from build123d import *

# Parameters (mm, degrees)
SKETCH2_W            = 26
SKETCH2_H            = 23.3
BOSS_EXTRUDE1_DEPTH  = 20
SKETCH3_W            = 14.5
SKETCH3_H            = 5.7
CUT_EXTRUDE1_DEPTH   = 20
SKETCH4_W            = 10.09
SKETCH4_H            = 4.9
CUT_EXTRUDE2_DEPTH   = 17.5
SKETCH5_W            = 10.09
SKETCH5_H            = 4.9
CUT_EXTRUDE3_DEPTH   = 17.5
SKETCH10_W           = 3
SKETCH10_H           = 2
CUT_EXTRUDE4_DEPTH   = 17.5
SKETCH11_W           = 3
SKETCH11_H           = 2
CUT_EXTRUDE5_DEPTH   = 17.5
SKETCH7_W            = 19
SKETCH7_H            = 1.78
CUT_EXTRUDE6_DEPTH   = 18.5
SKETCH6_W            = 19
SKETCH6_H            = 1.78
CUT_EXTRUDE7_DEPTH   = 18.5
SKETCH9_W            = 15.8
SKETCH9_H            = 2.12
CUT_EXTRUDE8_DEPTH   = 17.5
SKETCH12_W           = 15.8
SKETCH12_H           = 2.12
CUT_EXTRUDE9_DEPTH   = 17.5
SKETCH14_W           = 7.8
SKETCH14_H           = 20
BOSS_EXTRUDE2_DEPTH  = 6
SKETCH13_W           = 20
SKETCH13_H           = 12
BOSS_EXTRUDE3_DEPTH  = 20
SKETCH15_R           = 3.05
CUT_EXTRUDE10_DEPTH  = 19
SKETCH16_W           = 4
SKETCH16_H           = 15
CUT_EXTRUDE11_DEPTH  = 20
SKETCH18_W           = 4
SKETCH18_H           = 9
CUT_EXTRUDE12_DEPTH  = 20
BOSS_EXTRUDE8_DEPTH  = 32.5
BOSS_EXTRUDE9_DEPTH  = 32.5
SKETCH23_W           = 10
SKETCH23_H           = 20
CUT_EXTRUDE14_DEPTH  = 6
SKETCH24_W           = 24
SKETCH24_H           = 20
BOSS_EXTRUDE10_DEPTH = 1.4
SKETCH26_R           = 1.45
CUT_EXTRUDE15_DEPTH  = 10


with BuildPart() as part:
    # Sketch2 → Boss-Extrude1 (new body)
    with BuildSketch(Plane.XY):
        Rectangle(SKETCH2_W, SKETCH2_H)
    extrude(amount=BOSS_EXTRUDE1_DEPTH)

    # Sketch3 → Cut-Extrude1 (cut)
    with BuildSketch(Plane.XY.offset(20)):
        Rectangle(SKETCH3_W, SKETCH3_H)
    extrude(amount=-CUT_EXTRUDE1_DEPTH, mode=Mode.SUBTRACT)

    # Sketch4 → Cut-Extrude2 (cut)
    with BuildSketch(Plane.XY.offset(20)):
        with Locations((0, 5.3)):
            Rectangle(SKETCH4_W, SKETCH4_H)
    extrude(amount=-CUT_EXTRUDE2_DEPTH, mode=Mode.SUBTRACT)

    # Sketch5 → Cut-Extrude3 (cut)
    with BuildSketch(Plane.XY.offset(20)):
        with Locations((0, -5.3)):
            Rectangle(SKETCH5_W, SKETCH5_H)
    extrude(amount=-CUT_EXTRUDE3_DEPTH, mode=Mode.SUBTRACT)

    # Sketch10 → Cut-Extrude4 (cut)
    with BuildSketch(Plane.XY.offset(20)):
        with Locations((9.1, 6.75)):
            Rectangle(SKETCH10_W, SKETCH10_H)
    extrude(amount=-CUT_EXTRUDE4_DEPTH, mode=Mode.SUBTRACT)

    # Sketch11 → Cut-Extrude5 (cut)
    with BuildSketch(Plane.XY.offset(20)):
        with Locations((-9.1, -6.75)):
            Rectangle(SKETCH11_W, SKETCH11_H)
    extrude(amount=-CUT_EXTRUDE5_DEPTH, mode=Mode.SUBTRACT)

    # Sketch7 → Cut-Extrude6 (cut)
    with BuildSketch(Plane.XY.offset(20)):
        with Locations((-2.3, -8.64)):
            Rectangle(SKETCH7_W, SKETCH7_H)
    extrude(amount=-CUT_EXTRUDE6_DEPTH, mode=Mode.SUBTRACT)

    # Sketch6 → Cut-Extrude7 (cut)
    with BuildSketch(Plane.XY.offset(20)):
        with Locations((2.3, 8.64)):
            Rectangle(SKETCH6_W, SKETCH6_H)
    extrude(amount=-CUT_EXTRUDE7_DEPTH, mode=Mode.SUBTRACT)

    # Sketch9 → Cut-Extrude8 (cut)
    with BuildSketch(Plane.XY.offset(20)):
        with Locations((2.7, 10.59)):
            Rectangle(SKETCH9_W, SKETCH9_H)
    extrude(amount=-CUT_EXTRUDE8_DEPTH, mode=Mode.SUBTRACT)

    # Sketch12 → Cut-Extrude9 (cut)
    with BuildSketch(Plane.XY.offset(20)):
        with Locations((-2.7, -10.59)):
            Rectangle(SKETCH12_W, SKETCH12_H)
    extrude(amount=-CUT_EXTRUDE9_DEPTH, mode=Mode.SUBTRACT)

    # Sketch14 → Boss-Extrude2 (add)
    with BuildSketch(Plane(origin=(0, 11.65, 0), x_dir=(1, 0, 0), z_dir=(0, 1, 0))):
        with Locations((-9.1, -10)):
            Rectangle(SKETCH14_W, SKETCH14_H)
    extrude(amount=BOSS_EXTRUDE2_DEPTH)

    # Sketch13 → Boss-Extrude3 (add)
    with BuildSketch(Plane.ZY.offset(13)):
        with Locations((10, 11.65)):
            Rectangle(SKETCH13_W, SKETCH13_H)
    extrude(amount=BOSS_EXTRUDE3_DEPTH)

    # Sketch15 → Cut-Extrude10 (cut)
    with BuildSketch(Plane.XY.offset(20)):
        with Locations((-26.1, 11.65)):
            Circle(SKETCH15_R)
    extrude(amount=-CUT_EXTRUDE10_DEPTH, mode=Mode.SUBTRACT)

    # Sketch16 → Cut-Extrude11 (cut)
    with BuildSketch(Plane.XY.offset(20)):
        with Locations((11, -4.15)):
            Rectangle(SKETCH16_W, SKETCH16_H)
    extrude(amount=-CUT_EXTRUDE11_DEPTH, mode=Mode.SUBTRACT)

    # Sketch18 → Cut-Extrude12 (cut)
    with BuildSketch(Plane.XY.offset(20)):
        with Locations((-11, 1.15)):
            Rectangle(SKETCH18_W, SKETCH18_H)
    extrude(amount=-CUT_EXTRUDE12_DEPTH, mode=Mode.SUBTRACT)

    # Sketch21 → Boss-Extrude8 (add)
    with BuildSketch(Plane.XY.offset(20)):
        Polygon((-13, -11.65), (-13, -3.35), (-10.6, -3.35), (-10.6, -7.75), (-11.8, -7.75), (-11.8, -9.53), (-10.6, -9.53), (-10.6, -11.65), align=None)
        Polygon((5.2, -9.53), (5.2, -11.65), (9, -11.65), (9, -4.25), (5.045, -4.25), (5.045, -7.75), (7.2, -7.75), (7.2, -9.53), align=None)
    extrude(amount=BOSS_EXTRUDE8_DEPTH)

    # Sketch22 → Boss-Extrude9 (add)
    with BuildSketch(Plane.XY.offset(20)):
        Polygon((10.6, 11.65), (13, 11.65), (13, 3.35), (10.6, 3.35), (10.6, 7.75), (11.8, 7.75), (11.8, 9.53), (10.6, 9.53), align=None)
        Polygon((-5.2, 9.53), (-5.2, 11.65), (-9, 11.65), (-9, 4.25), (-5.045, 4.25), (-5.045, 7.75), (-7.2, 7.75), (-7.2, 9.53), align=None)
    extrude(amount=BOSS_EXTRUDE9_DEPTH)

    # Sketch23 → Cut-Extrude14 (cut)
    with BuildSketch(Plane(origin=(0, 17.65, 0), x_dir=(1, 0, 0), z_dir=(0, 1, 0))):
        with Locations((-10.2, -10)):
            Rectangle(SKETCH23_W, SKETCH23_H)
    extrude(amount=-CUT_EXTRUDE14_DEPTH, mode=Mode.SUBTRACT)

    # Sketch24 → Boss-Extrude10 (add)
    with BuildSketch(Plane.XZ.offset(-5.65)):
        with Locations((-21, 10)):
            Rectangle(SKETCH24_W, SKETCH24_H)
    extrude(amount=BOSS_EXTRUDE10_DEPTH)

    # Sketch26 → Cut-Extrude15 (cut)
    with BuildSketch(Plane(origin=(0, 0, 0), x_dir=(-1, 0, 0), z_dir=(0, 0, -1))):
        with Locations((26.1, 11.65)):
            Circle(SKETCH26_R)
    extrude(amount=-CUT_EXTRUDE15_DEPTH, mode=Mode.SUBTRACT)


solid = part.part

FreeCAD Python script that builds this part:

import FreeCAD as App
import Part
import Sketcher

doc = App.newDocument("Part")
body = doc.addObject("PartDesign::Body", "Body")

sketch1 = body.newObject("Sketcher::SketchObject", "Sketch")
sketch1.AttachmentSupport = (doc.getObject("XY_Plane"), [""])
sketch1.MapMode = "FlatFace"
sketch1.addGeometry(Part.LineSegment(App.Vector(-13, 12, 0), App.Vector(-13, -12, 0)), False)
sketch1.addGeometry(Part.LineSegment(App.Vector(-13, -12, 0), App.Vector(13, -12, 0)), False)
sketch1.addGeometry(Part.LineSegment(App.Vector(13, -12, 0), App.Vector(13, 12, 0)), False)
sketch1.addGeometry(Part.LineSegment(App.Vector(13, 12, 0), App.Vector(-13, 12, 0)), False)
sketch1.addConstraint(Sketcher.Constraint("Coincident", 0, 2, 1, 1))
sketch1.addConstraint(Sketcher.Constraint("Coincident", 1, 2, 2, 1))
sketch1.addConstraint(Sketcher.Constraint("Coincident", 2, 2, 3, 1))
sketch1.addConstraint(Sketcher.Constraint("Coincident", 3, 2, 0, 1))
sketch1.addConstraint(Sketcher.Constraint("Vertical", 0))
sketch1.addConstraint(Sketcher.Constraint("Horizontal", 1))
sketch1.addConstraint(Sketcher.Constraint("Vertical", 2))
sketch1.addConstraint(Sketcher.Constraint("Horizontal", 3))
sketch1.addConstraint(Sketcher.Constraint("Symmetric", 0, 2, 2, 2, -1, 1))
sketch1.addConstraint(Sketcher.Constraint("DistanceX", 1, 1, 1, 2, 26.0))
sketch1.addConstraint(Sketcher.Constraint("DistanceY", 0, 2, 0, 1, 23.3))
pad1 = body.newObject("PartDesign::Pad", "Pad")
pad1.Profile = sketch1
pad1.Length = 20

sketch2 = body.newObject("Sketcher::SketchObject", "Sketch001")
sketch2.AttachmentSupport = (doc.getObject("XY_Plane"), [""])
sketch2.MapMode = "FlatFace"
sketch2.AttachmentOffset = App.Placement(App.Vector(0, 0, 20), App.Rotation())
sketch2.addGeometry(Part.LineSegment(App.Vector(-7, 3, 0), App.Vector(-7, -3, 0)), False)
sketch2.addGeometry(Part.LineSegment(App.Vector(-7, -3, 0), App.Vector(7, -3, 0)), False)
sketch2.addGeometry(Part.LineSegment(App.Vector(7, -3, 0), App.Vector(7, 3, 0)), False)
sketch2.addGeometry(Part.LineSegment(App.Vector(7, 3, 0), App.Vector(-7, 3, 0)), False)
sketch2.addConstraint(Sketcher.Constraint("Coincident", 0, 2, 1, 1))
sketch2.addConstraint(Sketcher.Constraint("Coincident", 1, 2, 2, 1))
sketch2.addConstraint(Sketcher.Constraint("Coincident", 2, 2, 3, 1))
sketch2.addConstraint(Sketcher.Constraint("Coincident", 3, 2, 0, 1))
sketch2.addConstraint(Sketcher.Constraint("Vertical", 0))
sketch2.addConstraint(Sketcher.Constraint("Horizontal", 1))
sketch2.addConstraint(Sketcher.Constraint("Vertical", 2))
sketch2.addConstraint(Sketcher.Constraint("Horizontal", 3))
sketch2.addConstraint(Sketcher.Constraint("Symmetric", 0, 2, 2, 2, -1, 1))
sketch2.addConstraint(Sketcher.Constraint("DistanceX", 1, 1, 1, 2, 14.5))
sketch2.addConstraint(Sketcher.Constraint("DistanceY", 0, 2, 0, 1, 5.7))
pocket1 = body.newObject("PartDesign::Pocket", "Pocket")
pocket1.Profile = sketch2
pocket1.Length = 20

sketch3 = body.newObject("Sketcher::SketchObject", "Sketch002")
sketch3.AttachmentSupport = (doc.getObject("XY_Plane"), [""])
sketch3.MapMode = "FlatFace"
sketch3.AttachmentOffset = App.Placement(App.Vector(0, 0, 20), App.Rotation())
sketch3.addGeometry(Part.LineSegment(App.Vector(-5, 7.8, 0), App.Vector(-5, 2.9, 0)), False)
sketch3.addGeometry(Part.LineSegment(App.Vector(-5, 2.9, 0), App.Vector(5, 2.9, 0)), False)
sketch3.addGeometry(Part.LineSegment(App.Vector(5, 2.9, 0), App.Vector(5, 7.8, 0)), False)
sketch3.addGeometry(Part.LineSegment(App.Vector(5, 7.8, 0), App.Vector(-5, 7.8, 0)), False)
sketch3.addConstraint(Sketcher.Constraint("Coincident", 0, 2, 1, 1))
sketch3.addConstraint(Sketcher.Constraint("Coincident", 1, 2, 2, 1))
sketch3.addConstraint(Sketcher.Constraint("Coincident", 2, 2, 3, 1))
sketch3.addConstraint(Sketcher.Constraint("Coincident", 3, 2, 0, 1))
sketch3.addConstraint(Sketcher.Constraint("Vertical", 0))
sketch3.addConstraint(Sketcher.Constraint("Horizontal", 1))
sketch3.addConstraint(Sketcher.Constraint("Vertical", 2))
sketch3.addConstraint(Sketcher.Constraint("Horizontal", 3))
sketch3.addConstraint(Sketcher.Constraint("DistanceY", 0, 2, 0, 1, 4.9))
sketch3.addConstraint(Sketcher.Constraint("DistanceX", 1, 1, 1, 2, 10.09))
sketch3.addConstraint(Sketcher.Constraint("DistanceY", -1, 1, 0, 2, 2.85))
sketch3.addConstraint(Sketcher.Constraint("DistanceX", 0, 2, -1, 1, 5.045))
pocket2 = body.newObject("PartDesign::Pocket", "Pocket001")
pocket2.Profile = sketch3
pocket2.Length = 17.5

sketch4 = body.newObject("Sketcher::SketchObject", "Sketch003")
sketch4.AttachmentSupport = (doc.getObject("XY_Plane"), [""])
sketch4.MapMode = "FlatFace"
sketch4.AttachmentOffset = App.Placement(App.Vector(0, 0, 20), App.Rotation())
sketch4.addGeometry(Part.LineSegment(App.Vector(-5, -2.9, 0), App.Vector(-5, -7.8, 0)), False)
sketch4.addGeometry(Part.LineSegment(App.Vector(-5, -7.8, 0), App.Vector(5, -7.8, 0)), False)
sketch4.addGeometry(Part.LineSegment(App.Vector(5, -7.8, 0), App.Vector(5, -2.9, 0)), False)
sketch4.addGeometry(Part.LineSegment(App.Vector(5, -2.9, 0), App.Vector(-5, -2.9, 0)), False)
sketch4.addConstraint(Sketcher.Constraint("Coincident", 0, 2, 1, 1))
sketch4.addConstraint(Sketcher.Constraint("Coincident", 1, 2, 2, 1))
sketch4.addConstraint(Sketcher.Constraint("Coincident", 2, 2, 3, 1))
sketch4.addConstraint(Sketcher.Constraint("Coincident", 3, 2, 0, 1))
sketch4.addConstraint(Sketcher.Constraint("Vertical", 0))
sketch4.addConstraint(Sketcher.Constraint("Horizontal", 1))
sketch4.addConstraint(Sketcher.Constraint("Vertical", 2))
sketch4.addConstraint(Sketcher.Constraint("Horizontal", 3))
sketch4.addConstraint(Sketcher.Constraint("DistanceY", 0, 2, 0, 1, 4.9))
sketch4.addConstraint(Sketcher.Constraint("DistanceX", 1, 1, 1, 2, 10.09))
sketch4.addConstraint(Sketcher.Constraint("DistanceY", 0, 2, -1, 1, 7.75))
sketch4.addConstraint(Sketcher.Constraint("DistanceX", 0, 2, -1, 1, 5.045))
pocket3 = body.newObject("PartDesign::Pocket", "Pocket002")
pocket3.Profile = sketch4
pocket3.Length = 17.5

sketch5 = body.newObject("Sketcher::SketchObject", "Sketch004")
sketch5.AttachmentSupport = (doc.getObject("XY_Plane"), [""])
sketch5.MapMode = "FlatFace"
sketch5.AttachmentOffset = App.Placement(App.Vector(0, 0, 20), App.Rotation())
sketch5.addGeometry(Part.LineSegment(App.Vector(7.6, 7.8, 0), App.Vector(7.6, 5.8, 0)), False)
sketch5.addGeometry(Part.LineSegment(App.Vector(7.6, 5.8, 0), App.Vector(10.6, 5.8, 0)), False)
sketch5.addGeometry(Part.LineSegment(App.Vector(10.6, 5.8, 0), App.Vector(10.6, 7.8, 0)), False)
sketch5.addGeometry(Part.LineSegment(App.Vector(10.6, 7.8, 0), App.Vector(7.6, 7.8, 0)), False)
sketch5.addConstraint(Sketcher.Constraint("Coincident", 0, 2, 1, 1))
sketch5.addConstraint(Sketcher.Constraint("Coincident", 1, 2, 2, 1))
sketch5.addConstraint(Sketcher.Constraint("Coincident", 2, 2, 3, 1))
sketch5.addConstraint(Sketcher.Constraint("Coincident", 3, 2, 0, 1))
sketch5.addConstraint(Sketcher.Constraint("Vertical", 0))
sketch5.addConstraint(Sketcher.Constraint("Horizontal", 1))
sketch5.addConstraint(Sketcher.Constraint("Vertical", 2))
sketch5.addConstraint(Sketcher.Constraint("Horizontal", 3))
sketch5.addConstraint(Sketcher.Constraint("DistanceX", 1, 1, 1, 2, 3.0))
sketch5.addConstraint(Sketcher.Constraint("DistanceY", 0, 2, 0, 1, 2.0))
sketch5.addConstraint(Sketcher.Constraint("DistanceX", -1, 1, 0, 2, 7.6))
sketch5.addConstraint(Sketcher.Constraint("DistanceY", -1, 1, 0, 2, 5.75))
pocket4 = body.newObject("PartDesign::Pocket", "Pocket003")
pocket4.Profile = sketch5
pocket4.Length = 17.5

sketch6 = body.newObject("Sketcher::SketchObject", "Sketch005")
sketch6.AttachmentSupport = (doc.getObject("XY_Plane"), [""])
sketch6.MapMode = "FlatFace"
sketch6.AttachmentOffset = App.Placement(App.Vector(0, 0, 20), App.Rotation())
sketch6.addGeometry(Part.LineSegment(App.Vector(-10.6, -5.8, 0), App.Vector(-10.6, -7.8, 0)), False)
sketch6.addGeometry(Part.LineSegment(App.Vector(-10.6, -7.8, 0), App.Vector(-7.6, -7.8, 0)), False)
sketch6.addGeometry(Part.LineSegment(App.Vector(-7.6, -7.8, 0), App.Vector(-7.6, -5.8, 0)), False)
sketch6.addGeometry(Part.LineSegment(App.Vector(-7.6, -5.8, 0), App.Vector(-10.6, -5.8, 0)), False)
sketch6.addConstraint(Sketcher.Constraint("Coincident", 0, 2, 1, 1))
sketch6.addConstraint(Sketcher.Constraint("Coincident", 1, 2, 2, 1))
sketch6.addConstraint(Sketcher.Constraint("Coincident", 2, 2, 3, 1))
sketch6.addConstraint(Sketcher.Constraint("Coincident", 3, 2, 0, 1))
sketch6.addConstraint(Sketcher.Constraint("Vertical", 0))
sketch6.addConstraint(Sketcher.Constraint("Horizontal", 1))
sketch6.addConstraint(Sketcher.Constraint("Vertical", 2))
sketch6.addConstraint(Sketcher.Constraint("Horizontal", 3))
sketch6.addConstraint(Sketcher.Constraint("DistanceX", 1, 1, 1, 2, 3.0))
sketch6.addConstraint(Sketcher.Constraint("DistanceY", 0, 2, 0, 1, 2.0))
sketch6.addConstraint(Sketcher.Constraint("DistanceX", 0, 2, -1, 1, 10.6))
sketch6.addConstraint(Sketcher.Constraint("DistanceY", 0, 2, -1, 1, 7.75))
pocket5 = body.newObject("PartDesign::Pocket", "Pocket004")
pocket5.Profile = sketch6
pocket5.Length = 17.5

sketch7 = body.newObject("Sketcher::SketchObject", "Sketch006")
sketch7.AttachmentSupport = (doc.getObject("XY_Plane"), [""])
sketch7.MapMode = "FlatFace"
sketch7.AttachmentOffset = App.Placement(App.Vector(0, 0, 20), App.Rotation())
sketch7.addGeometry(Part.LineSegment(App.Vector(-11.8, -7.8, 0), App.Vector(-11.8, -9.5, 0)), False)
sketch7.addGeometry(Part.LineSegment(App.Vector(-11.8, -9.5, 0), App.Vector(7.2, -9.5, 0)), False)
sketch7.addGeometry(Part.LineSegment(App.Vector(7.2, -9.5, 0), App.Vector(7.2, -7.8, 0)), False)
sketch7.addGeometry(Part.LineSegment(App.Vector(7.2, -7.8, 0), App.Vector(-11.8, -7.8, 0)), False)
sketch7.addConstraint(Sketcher.Constraint("Coincident", 0, 2, 1, 1))
sketch7.addConstraint(Sketcher.Constraint("Coincident", 1, 2, 2, 1))
sketch7.addConstraint(Sketcher.Constraint("Coincident", 2, 2, 3, 1))
sketch7.addConstraint(Sketcher.Constraint("Coincident", 3, 2, 0, 1))
sketch7.addConstraint(Sketcher.Constraint("Vertical", 0))
sketch7.addConstraint(Sketcher.Constraint("Horizontal", 1))
sketch7.addConstraint(Sketcher.Constraint("Vertical", 2))
sketch7.addConstraint(Sketcher.Constraint("Horizontal", 3))
sketch7.addConstraint(Sketcher.Constraint("DistanceX", 1, 1, 1, 2, 19.0))
sketch7.addConstraint(Sketcher.Constraint("DistanceY", 0, 2, 0, 1, 1.78))
sketch7.addConstraint(Sketcher.Constraint("DistanceX", 0, 2, -1, 1, 11.8))
sketch7.addConstraint(Sketcher.Constraint("DistanceY", 0, 2, -1, 1, 9.53))
pocket6 = body.newObject("PartDesign::Pocket", "Pocket005")
pocket6.Profile = sketch7
pocket6.Length = 18.5

sketch8 = body.newObject("Sketcher::SketchObject", "Sketch007")
sketch8.AttachmentSupport = (doc.getObject("XY_Plane"), [""])
sketch8.MapMode = "FlatFace"
sketch8.AttachmentOffset = App.Placement(App.Vector(0, 0, 20), App.Rotation())
sketch8.addGeometry(Part.LineSegment(App.Vector(-7.2, 9.5, 0), App.Vector(-7.2, 7.8, 0)), False)
sketch8.addGeometry(Part.LineSegment(App.Vector(-7.2, 7.8, 0), App.Vector(11.8, 7.8, 0)), False)
sketch8.addGeometry(Part.LineSegment(App.Vector(11.8, 7.8, 0), App.Vector(11.8, 9.5, 0)), False)
sketch8.addGeometry(Part.LineSegment(App.Vector(11.8, 9.5, 0), App.Vector(-7.2, 9.5, 0)), False)
sketch8.addConstraint(Sketcher.Constraint("Coincident", 0, 2, 1, 1))
sketch8.addConstraint(Sketcher.Constraint("Coincident", 1, 2, 2, 1))
sketch8.addConstraint(Sketcher.Constraint("Coincident", 2, 2, 3, 1))
sketch8.addConstraint(Sketcher.Constraint("Coincident", 3, 2, 0, 1))
sketch8.addConstraint(Sketcher.Constraint("Vertical", 0))
sketch8.addConstraint(Sketcher.Constraint("Horizontal", 1))
sketch8.addConstraint(Sketcher.Constraint("Vertical", 2))
sketch8.addConstraint(Sketcher.Constraint("Horizontal", 3))
sketch8.addConstraint(Sketcher.Constraint("DistanceX", 1, 1, 1, 2, 19.0))
sketch8.addConstraint(Sketcher.Constraint("DistanceY", 0, 2, 0, 1, 1.78))
sketch8.addConstraint(Sketcher.Constraint("DistanceX", 0, 2, -1, 1, 7.2))
sketch8.addConstraint(Sketcher.Constraint("DistanceY", -1, 1, 0, 2, 7.75))
pocket7 = body.newObject("PartDesign::Pocket", "Pocket006")
pocket7.Profile = sketch8
pocket7.Length = 18.5

sketch9 = body.newObject("Sketcher::SketchObject", "Sketch008")
sketch9.AttachmentSupport = (doc.getObject("XY_Plane"), [""])
sketch9.MapMode = "FlatFace"
sketch9.AttachmentOffset = App.Placement(App.Vector(0, 0, 20), App.Rotation())
sketch9.addGeometry(Part.LineSegment(App.Vector(-5.2, 11.7, 0), App.Vector(-5.2, 9.5, 0)), False)
sketch9.addGeometry(Part.LineSegment(App.Vector(-5.2, 9.5, 0), App.Vector(10.6, 9.5, 0)), False)
sketch9.addGeometry(Part.LineSegment(App.Vector(10.6, 9.5, 0), App.Vector(10.6, 11.7, 0)), False)
sketch9.addGeometry(Part.LineSegment(App.Vector(10.6, 11.7, 0), App.Vector(-5.2, 11.7, 0)), False)
sketch9.addConstraint(Sketcher.Constraint("Coincident", 0, 2, 1, 1))
sketch9.addConstraint(Sketcher.Constraint("Coincident", 1, 2, 2, 1))
sketch9.addConstraint(Sketcher.Constraint("Coincident", 2, 2, 3, 1))
sketch9.addConstraint(Sketcher.Constraint("Coincident", 3, 2, 0, 1))
sketch9.addConstraint(Sketcher.Constraint("Vertical", 0))
sketch9.addConstraint(Sketcher.Constraint("Horizontal", 1))
sketch9.addConstraint(Sketcher.Constraint("Vertical", 2))
sketch9.addConstraint(Sketcher.Constraint("Horizontal", 3))
sketch9.addConstraint(Sketcher.Constraint("DistanceX", 1, 1, 1, 2, 15.8))
sketch9.addConstraint(Sketcher.Constraint("DistanceY", 0, 2, 0, 1, 2.12))
sketch9.addConstraint(Sketcher.Constraint("DistanceX", 0, 2, -1, 1, 5.2))
sketch9.addConstraint(Sketcher.Constraint("DistanceY", -1, 1, 0, 2, 9.53))
pocket8 = body.newObject("PartDesign::Pocket", "Pocket007")
pocket8.Profile = sketch9
pocket8.Length = 17.5

sketch10 = body.newObject("Sketcher::SketchObject", "Sketch009")
sketch10.AttachmentSupport = (doc.getObject("XY_Plane"), [""])
sketch10.MapMode = "FlatFace"
sketch10.AttachmentOffset = App.Placement(App.Vector(0, 0, 20), App.Rotation())
sketch10.addGeometry(Part.LineSegment(App.Vector(-10.6, -9.5, 0), App.Vector(-10.6, -11.7, 0)), False)
sketch10.addGeometry(Part.LineSegment(App.Vector(-10.6, -11.7, 0), App.Vector(5.2, -11.7, 0)), False)
sketch10.addGeometry(Part.LineSegment(App.Vector(5.2, -11.7, 0), App.Vector(5.2, -9.5, 0)), False)
sketch10.addGeometry(Part.LineSegment(App.Vector(5.2, -9.5, 0), App.Vector(-10.6, -9.5, 0)), False)
sketch10.addConstraint(Sketcher.Constraint("Coincident", 0, 2, 1, 1))
sketch10.addConstraint(Sketcher.Constraint("Coincident", 1, 2, 2, 1))
sketch10.addConstraint(Sketcher.Constraint("Coincident", 2, 2, 3, 1))
sketch10.addConstraint(Sketcher.Constraint("Coincident", 3, 2, 0, 1))
sketch10.addConstraint(Sketcher.Constraint("Vertical", 0))
sketch10.addConstraint(Sketcher.Constraint("Horizontal", 1))
sketch10.addConstraint(Sketcher.Constraint("Vertical", 2))
sketch10.addConstraint(Sketcher.Constraint("Horizontal", 3))
sketch10.addConstraint(Sketcher.Constraint("DistanceX", 1, 1, 1, 2, 15.8))
sketch10.addConstraint(Sketcher.Constraint("DistanceY", 0, 2, 0, 1, 2.12))
sketch10.addConstraint(Sketcher.Constraint("DistanceX", 0, 2, -1, 1, 10.6))
sketch10.addConstraint(Sketcher.Constraint("DistanceY", 0, 2, -1, 1, 11.65))
pocket9 = body.newObject("PartDesign::Pocket", "Pocket008")
pocket9.Profile = sketch10
pocket9.Length = 17.5

sketch11 = body.newObject("Sketcher::SketchObject", "Sketch010")
sketch11.AttachmentSupport = (doc.getObject("XZ_Plane"), [""])
sketch11.MapMode = "FlatFace"
sketch11.AttachmentOffset = App.Placement(App.Vector(0, 0, -11.65), App.Rotation())
sketch11.addGeometry(Part.LineSegment(App.Vector(-13, 0, 0), App.Vector(-13, 20, 0)), False)
sketch11.addGeometry(Part.LineSegment(App.Vector(-13, 20, 0), App.Vector(-5, 20, 0)), False)
sketch11.addGeometry(Part.LineSegment(App.Vector(-5, 20, 0), App.Vector(-5, 0, 0)), False)
sketch11.addGeometry(Part.LineSegment(App.Vector(-5, 0, 0), App.Vector(-13, 0, 0)), False)
sketch11.addConstraint(Sketcher.Constraint("Coincident", 0, 2, 1, 1))
sketch11.addConstraint(Sketcher.Constraint("Coincident", 1, 2, 2, 1))
sketch11.addConstraint(Sketcher.Constraint("Coincident", 2, 2, 3, 1))
sketch11.addConstraint(Sketcher.Constraint("Coincident", 3, 2, 0, 1))
sketch11.addConstraint(Sketcher.Constraint("Vertical", 0))
sketch11.addConstraint(Sketcher.Constraint("Horizontal", 1))
sketch11.addConstraint(Sketcher.Constraint("Vertical", 2))
sketch11.addConstraint(Sketcher.Constraint("Horizontal", 3))
sketch11.addConstraint(Sketcher.Constraint("PointOnObject", 2, 2, -1))
sketch11.addConstraint(Sketcher.Constraint("DistanceY", 0, 1, 0, 2, 20.0))
sketch11.addConstraint(Sketcher.Constraint("DistanceX", 1, 1, 1, 2, 7.8))
sketch11.addConstraint(Sketcher.Constraint("DistanceX", 0, 2, -1, 1, 13.0))
pad2 = body.newObject("PartDesign::Pad", "Pad001")
pad2.Profile = sketch11
pad2.Length = 6
pad2.Reversed = True

sketch12 = body.newObject("Sketcher::SketchObject", "Sketch011")
sketch12.AttachmentSupport = (doc.getObject("YZ_Plane"), [""])
sketch12.MapMode = "FlatFace"
sketch12.AttachmentOffset = App.Placement(App.Vector(0, 0, -13), App.Rotation())
sketch12.addGeometry(Part.LineSegment(App.Vector(18, 0, 0), App.Vector(6, 0, 0)), False)
sketch12.addGeometry(Part.LineSegment(App.Vector(6, 0, 0), App.Vector(6, 20, 0)), False)
sketch12.addGeometry(Part.LineSegment(App.Vector(6, 20, 0), App.Vector(18, 20, 0)), False)
sketch12.addGeometry(Part.LineSegment(App.Vector(18, 20, 0), App.Vector(18, 0, 0)), False)
sketch12.addConstraint(Sketcher.Constraint("Coincident", 0, 2, 1, 1))
sketch12.addConstraint(Sketcher.Constraint("Coincident", 1, 2, 2, 1))
sketch12.addConstraint(Sketcher.Constraint("Coincident", 2, 2, 3, 1))
sketch12.addConstraint(Sketcher.Constraint("Coincident", 3, 2, 0, 1))
sketch12.addConstraint(Sketcher.Constraint("Horizontal", 0))
sketch12.addConstraint(Sketcher.Constraint("Vertical", 1))
sketch12.addConstraint(Sketcher.Constraint("Horizontal", 2))
sketch12.addConstraint(Sketcher.Constraint("Vertical", 3))
sketch12.addConstraint(Sketcher.Constraint("PointOnObject", 0, 2, -1))
sketch12.addConstraint(Sketcher.Constraint("DistanceX", 0, 2, 0, 1, 12.0))
sketch12.addConstraint(Sketcher.Constraint("DistanceY", 1, 1, 1, 2, 20.0))
sketch12.addConstraint(Sketcher.Constraint("DistanceX", -1, 1, 0, 2, 5.65))
pad3 = body.newObject("PartDesign::Pad", "Pad002")
pad3.Profile = sketch12
pad3.Length = 20
pad3.Reversed = True

sketch13 = body.newObject("Sketcher::SketchObject", "Sketch012")
sketch13.AttachmentSupport = (doc.getObject("XY_Plane"), [""])
sketch13.MapMode = "FlatFace"
sketch13.AttachmentOffset = App.Placement(App.Vector(0, 0, 20), App.Rotation())
sketch13.addGeometry(Part.Circle(App.Vector(-26.1, 11.7, 0), App.Vector(0, 0, 1), 3), False)
sketch13.addConstraint(Sketcher.Constraint("Diameter", 0, 6.1))
sketch13.addConstraint(Sketcher.Constraint("DistanceX", 0, 3, -1, 1, 26.1))
sketch13.addConstraint(Sketcher.Constraint("DistanceY", -1, 1, 0, 3, 11.65))
pocket10 = body.newObject("PartDesign::Pocket", "Pocket009")
pocket10.Profile = sketch13
pocket10.Length = 19

sketch14 = body.newObject("Sketcher::SketchObject", "Sketch013")
sketch14.AttachmentSupport = (doc.getObject("XY_Plane"), [""])
sketch14.MapMode = "FlatFace"
sketch14.AttachmentOffset = App.Placement(App.Vector(0, 0, 20), App.Rotation())
sketch14.addGeometry(Part.LineSegment(App.Vector(9, 3.4, 0), App.Vector(9, -11.7, 0)), False)
sketch14.addGeometry(Part.LineSegment(App.Vector(9, -11.7, 0), App.Vector(13, -11.7, 0)), False)
sketch14.addGeometry(Part.LineSegment(App.Vector(13, -11.7, 0), App.Vector(13, 3.4, 0)), False)
sketch14.addGeometry(Part.LineSegment(App.Vector(13, 3.4, 0), App.Vector(9, 3.4, 0)), False)
sketch14.addConstraint(Sketcher.Constraint("Coincident", 0, 2, 1, 1))
sketch14.addConstraint(Sketcher.Constraint("Coincident", 1, 2, 2, 1))
sketch14.addConstraint(Sketcher.Constraint("Coincident", 2, 2, 3, 1))
sketch14.addConstraint(Sketcher.Constraint("Coincident", 3, 2, 0, 1))
sketch14.addConstraint(Sketcher.Constraint("Vertical", 0))
sketch14.addConstraint(Sketcher.Constraint("Horizontal", 1))
sketch14.addConstraint(Sketcher.Constraint("Vertical", 2))
sketch14.addConstraint(Sketcher.Constraint("Horizontal", 3))
sketch14.addConstraint(Sketcher.Constraint("DistanceX", 1, 1, 1, 2, 4.0))
sketch14.addConstraint(Sketcher.Constraint("DistanceY", 0, 2, 0, 1, 15.0))
sketch14.addConstraint(Sketcher.Constraint("DistanceX", -1, 1, 0, 2, 9.0))
sketch14.addConstraint(Sketcher.Constraint("DistanceY", 0, 2, -1, 1, 11.65))
pocket11 = body.newObject("PartDesign::Pocket", "Pocket010")
pocket11.Profile = sketch14
pocket11.Length = 20

sketch15 = body.newObject("Sketcher::SketchObject", "Sketch014")
sketch15.AttachmentSupport = (doc.getObject("XY_Plane"), [""])
sketch15.MapMode = "FlatFace"
sketch15.AttachmentOffset = App.Placement(App.Vector(0, 0, 20), App.Rotation())
sketch15.addGeometry(Part.LineSegment(App.Vector(-13, 5.7, 0), App.Vector(-13, -3.4, 0)), False)
sketch15.addGeometry(Part.LineSegment(App.Vector(-13, -3.4, 0), App.Vector(-9, -3.4, 0)), False)
sketch15.addGeometry(Part.LineSegment(App.Vector(-9, -3.4, 0), App.Vector(-9, 5.7, 0)), False)
sketch15.addGeometry(Part.LineSegment(App.Vector(-9, 5.7, 0), App.Vector(-13, 5.7, 0)), False)
sketch15.addConstraint(Sketcher.Constraint("Coincident", 0, 2, 1, 1))
sketch15.addConstraint(Sketcher.Constraint("Coincident", 1, 2, 2, 1))
sketch15.addConstraint(Sketcher.Constraint("Coincident", 2, 2, 3, 1))
sketch15.addConstraint(Sketcher.Constraint("Coincident", 3, 2, 0, 1))
sketch15.addConstraint(Sketcher.Constraint("Vertical", 0))
sketch15.addConstraint(Sketcher.Constraint("Horizontal", 1))
sketch15.addConstraint(Sketcher.Constraint("Vertical", 2))
sketch15.addConstraint(Sketcher.Constraint("Horizontal", 3))
sketch15.addConstraint(Sketcher.Constraint("DistanceX", 1, 1, 1, 2, 4.0))
sketch15.addConstraint(Sketcher.Constraint("DistanceY", 0, 2, 0, 1, 9.0))
sketch15.addConstraint(Sketcher.Constraint("DistanceX", 0, 2, -1, 1, 13.0))
sketch15.addConstraint(Sketcher.Constraint("DistanceY", 0, 2, -1, 1, 3.35))
pocket12 = body.newObject("PartDesign::Pocket", "Pocket011")
pocket12.Profile = sketch15
pocket12.Length = 20

sketch16 = body.newObject("Sketcher::SketchObject", "Sketch015")
sketch16.AttachmentSupport = (doc.getObject("XY_Plane"), [""])
sketch16.MapMode = "FlatFace"
sketch16.AttachmentOffset = App.Placement(App.Vector(0, 0, 20), App.Rotation())
sketch16.addGeometry(Part.LineSegment(App.Vector(-13, -3.4, 0), App.Vector(-13, -11.7, 0)), False)
sketch16.addGeometry(Part.LineSegment(App.Vector(-13, -11.7, 0), App.Vector(-10.6, -11.7, 0)), False)
sketch16.addGeometry(Part.LineSegment(App.Vector(-10.6, -11.7, 0), App.Vector(-10.6, -9.5, 0)), False)
sketch16.addGeometry(Part.LineSegment(App.Vector(-10.6, -9.5, 0), App.Vector(-11.8, -9.5, 0)), False)
sketch16.addGeometry(Part.LineSegment(App.Vector(-11.8, -9.5, 0), App.Vector(-11.8, -7.8, 0)), False)
sketch16.addGeometry(Part.LineSegment(App.Vector(-11.8, -7.8, 0), App.Vector(-10.6, -7.8, 0)), False)
sketch16.addGeometry(Part.LineSegment(App.Vector(-10.6, -7.8, 0), App.Vector(-10.6, -3.4, 0)), False)
sketch16.addGeometry(Part.LineSegment(App.Vector(-10.6, -3.4, 0), App.Vector(-13, -3.4, 0)), False)
sketch16.addGeometry(Part.LineSegment(App.Vector(5.2, -9.5, 0), App.Vector(5.2, -11.7, 0)), False)
sketch16.addGeometry(Part.LineSegment(App.Vector(5.2, -11.7, 0), App.Vector(9, -11.7, 0)), False)
sketch16.addGeometry(Part.LineSegment(App.Vector(9, -11.7, 0), App.Vector(9, -4.2, 0)), False)
sketch16.addGeometry(Part.LineSegment(App.Vector(9, -4.2, 0), App.Vector(5, -4.2, 0)), False)
sketch16.addGeometry(Part.LineSegment(App.Vector(5, -4.2, 0), App.Vector(5, -7.8, 0)), False)
sketch16.addGeometry(Part.LineSegment(App.Vector(5, -7.8, 0), App.Vector(7.2, -7.8, 0)), False)
sketch16.addGeometry(Part.LineSegment(App.Vector(7.2, -7.8, 0), App.Vector(7.2, -9.5, 0)), False)
sketch16.addGeometry(Part.LineSegment(App.Vector(7.2, -9.5, 0), App.Vector(5.2, -9.5, 0)), False)
sketch16.addConstraint(Sketcher.Constraint("Coincident", 0, 2, 1, 1))
sketch16.addConstraint(Sketcher.Constraint("Coincident", 1, 2, 2, 1))
sketch16.addConstraint(Sketcher.Constraint("Coincident", 2, 2, 3, 1))
sketch16.addConstraint(Sketcher.Constraint("Coincident", 3, 2, 4, 1))
sketch16.addConstraint(Sketcher.Constraint("Coincident", 4, 2, 5, 1))
sketch16.addConstraint(Sketcher.Constraint("Coincident", 5, 2, 6, 1))
sketch16.addConstraint(Sketcher.Constraint("Coincident", 6, 2, 7, 1))
sketch16.addConstraint(Sketcher.Constraint("Coincident", 7, 2, 0, 1))
sketch16.addConstraint(Sketcher.Constraint("Coincident", 8, 2, 9, 1))
sketch16.addConstraint(Sketcher.Constraint("Coincident", 9, 2, 10, 1))
sketch16.addConstraint(Sketcher.Constraint("Coincident", 10, 2, 11, 1))
sketch16.addConstraint(Sketcher.Constraint("Coincident", 11, 2, 12, 1))
sketch16.addConstraint(Sketcher.Constraint("Coincident", 12, 2, 13, 1))
sketch16.addConstraint(Sketcher.Constraint("Coincident", 13, 2, 14, 1))
sketch16.addConstraint(Sketcher.Constraint("Coincident", 14, 2, 15, 1))
sketch16.addConstraint(Sketcher.Constraint("Coincident", 15, 2, 8, 1))
sketch16.addConstraint(Sketcher.Constraint("Vertical", 0))
sketch16.addConstraint(Sketcher.Constraint("Horizontal", 1))
sketch16.addConstraint(Sketcher.Constraint("Vertical", 2))
sketch16.addConstraint(Sketcher.Constraint("Horizontal", 3))
sketch16.addConstraint(Sketcher.Constraint("Vertical", 4))
sketch16.addConstraint(Sketcher.Constraint("Horizontal", 5))
sketch16.addConstraint(Sketcher.Constraint("Vertical", 6))
sketch16.addConstraint(Sketcher.Constraint("Horizontal", 7))
sketch16.addConstraint(Sketcher.Constraint("Vertical", 8))
sketch16.addConstraint(Sketcher.Constraint("Horizontal", 9))
sketch16.addConstraint(Sketcher.Constraint("Vertical", 10))
sketch16.addConstraint(Sketcher.Constraint("Horizontal", 11))
sketch16.addConstraint(Sketcher.Constraint("Vertical", 12))
sketch16.addConstraint(Sketcher.Constraint("Horizontal", 13))
sketch16.addConstraint(Sketcher.Constraint("Vertical", 14))
sketch16.addConstraint(Sketcher.Constraint("Horizontal", 15))
sketch16.addConstraint(Sketcher.Constraint("Horizontal", 1, 2, 8, 2))
sketch16.addConstraint(Sketcher.Constraint("Horizontal", 5, 2, 12, 2))
sketch16.addConstraint(Sketcher.Constraint("Horizontal", 3, 2, 14, 2))
sketch16.addConstraint(Sketcher.Constraint("Vertical", 2, 2, 5, 2))
sketch16.addConstraint(Sketcher.Constraint("DistanceX", 15, 2, 15, 1, 2.0))
sketch16.addConstraint(Sketcher.Constraint("DistanceX", 1, 1, 1, 2, 2.4))
sketch16.addConstraint(Sketcher.Constraint("DistanceX", 3, 2, 3, 1, 1.2))
sketch16.addConstraint(Sketcher.Constraint("DistanceX", 9, 1, 9, 2, 3.8))
sketch16.addConstraint(Sketcher.Constraint("DistanceY", 0, 2, 0, 1, 8.3))
sketch16.addConstraint(Sketcher.Constraint("DistanceY", 6, 1, 6, 2, 4.4))
sketch16.addConstraint(Sketcher.Constraint("DistanceY", 10, 1, 10, 2, 7.4))
sketch16.addConstraint(Sketcher.Constraint("DistanceX", 0, 2, -1, 1, 13.0))
sketch16.addConstraint(Sketcher.Constraint("DistanceX", -1, 1, 9, 2, 9.0))
sketch16.addConstraint(Sketcher.Constraint("DistanceY", 2, 1, 2, 2, 2.12))
sketch16.addConstraint(Sketcher.Constraint("DistanceX", 11, 2, 11, 1, 3.955))
sketch16.addConstraint(Sketcher.Constraint("DistanceY", 0, 2, -1, 1, 11.65))
pad4 = body.newObject("PartDesign::Pad", "Pad003")
pad4.Profile = sketch16
pad4.Length = 32.5

sketch17 = body.newObject("Sketcher::SketchObject", "Sketch016")
sketch17.AttachmentSupport = (doc.getObject("XY_Plane"), [""])
sketch17.MapMode = "FlatFace"
sketch17.AttachmentOffset = App.Placement(App.Vector(0, 0, 20), App.Rotation())
sketch17.addGeometry(Part.LineSegment(App.Vector(13, 11.7, 0), App.Vector(10.6, 11.7, 0)), False)
sketch17.addGeometry(Part.LineSegment(App.Vector(10.6, 11.7, 0), App.Vector(10.6, 9.5, 0)), False)
sketch17.addGeometry(Part.LineSegment(App.Vector(10.6, 9.5, 0), App.Vector(11.8, 9.5, 0)), False)
sketch17.addGeometry(Part.LineSegment(App.Vector(11.8, 9.5, 0), App.Vector(11.8, 7.8, 0)), False)
sketch17.addGeometry(Part.LineSegment(App.Vector(11.8, 7.8, 0), App.Vector(10.6, 7.8, 0)), False)
sketch17.addGeometry(Part.LineSegment(App.Vector(10.6, 7.8, 0), App.Vector(10.6, 3.4, 0)), False)
sketch17.addGeometry(Part.LineSegment(App.Vector(10.6, 3.4, 0), App.Vector(13, 3.4, 0)), False)
sketch17.addGeometry(Part.LineSegment(App.Vector(13, 3.4, 0), App.Vector(13, 11.7, 0)), False)
sketch17.addGeometry(Part.LineSegment(App.Vector(-5.2, 9.5, 0), App.Vector(-5.2, 11.7, 0)), False)
sketch17.addGeometry(Part.LineSegment(App.Vector(-5.2, 11.7, 0), App.Vector(-9, 11.7, 0)), False)
sketch17.addGeometry(Part.LineSegment(App.Vector(-9, 11.7, 0), App.Vector(-9, 4.2, 0)), False)
sketch17.addGeometry(Part.LineSegment(App.Vector(-9, 4.2, 0), App.Vector(-5, 4.2, 0)), False)
sketch17.addGeometry(Part.LineSegment(App.Vector(-5, 4.2, 0), App.Vector(-5, 7.8, 0)), False)
sketch17.addGeometry(Part.LineSegment(App.Vector(-5, 7.8, 0), App.Vector(-7.2, 7.8, 0)), False)
sketch17.addGeometry(Part.LineSegment(App.Vector(-7.2, 7.8, 0), App.Vector(-7.2, 9.5, 0)), False)
sketch17.addGeometry(Part.LineSegment(App.Vector(-7.2, 9.5, 0), App.Vector(-5.2, 9.5, 0)), False)
sketch17.addConstraint(Sketcher.Constraint("Coincident", 0, 2, 1, 1))
sketch17.addConstraint(Sketcher.Constraint("Coincident", 1, 2, 2, 1))
sketch17.addConstraint(Sketcher.Constraint("Coincident", 2, 2, 3, 1))
sketch17.addConstraint(Sketcher.Constraint("Coincident", 3, 2, 4, 1))
sketch17.addConstraint(Sketcher.Constraint("Coincident", 4, 2, 5, 1))
sketch17.addConstraint(Sketcher.Constraint("Coincident", 5, 2, 6, 1))
sketch17.addConstraint(Sketcher.Constraint("Coincident", 6, 2, 7, 1))
sketch17.addConstraint(Sketcher.Constraint("Coincident", 7, 2, 0, 1))
sketch17.addConstraint(Sketcher.Constraint("Coincident", 8, 2, 9, 1))
sketch17.addConstraint(Sketcher.Constraint("Coincident", 9, 2, 10, 1))
sketch17.addConstraint(Sketcher.Constraint("Coincident", 10, 2, 11, 1))
sketch17.addConstraint(Sketcher.Constraint("Coincident", 11, 2, 12, 1))
sketch17.addConstraint(Sketcher.Constraint("Coincident", 12, 2, 13, 1))
sketch17.addConstraint(Sketcher.Constraint("Coincident", 13, 2, 14, 1))
sketch17.addConstraint(Sketcher.Constraint("Coincident", 14, 2, 15, 1))
sketch17.addConstraint(Sketcher.Constraint("Coincident", 15, 2, 8, 1))
sketch17.addConstraint(Sketcher.Constraint("Horizontal", 0))
sketch17.addConstraint(Sketcher.Constraint("Vertical", 1))
sketch17.addConstraint(Sketcher.Constraint("Horizontal", 2))
sketch17.addConstraint(Sketcher.Constraint("Vertical", 3))
sketch17.addConstraint(Sketcher.Constraint("Horizontal", 4))
sketch17.addConstraint(Sketcher.Constraint("Vertical", 5))
sketch17.addConstraint(Sketcher.Constraint("Horizontal", 6))
sketch17.addConstraint(Sketcher.Constraint("Vertical", 7))
sketch17.addConstraint(Sketcher.Constraint("Vertical", 8))
sketch17.addConstraint(Sketcher.Constraint("Horizontal", 9))
sketch17.addConstraint(Sketcher.Constraint("Vertical", 10))
sketch17.addConstraint(Sketcher.Constraint("Horizontal", 11))
sketch17.addConstraint(Sketcher.Constraint("Vertical", 12))
sketch17.addConstraint(Sketcher.Constraint("Horizontal", 13))
sketch17.addConstraint(Sketcher.Constraint("Vertical", 14))
sketch17.addConstraint(Sketcher.Constraint("Horizontal", 15))
sketch17.addConstraint(Sketcher.Constraint("Horizontal", 7, 2, 8, 2))
sketch17.addConstraint(Sketcher.Constraint("Horizontal", 4, 2, 12, 2))
sketch17.addConstraint(Sketcher.Constraint("Horizontal", 2, 2, 14, 2))
sketch17.addConstraint(Sketcher.Constraint("Vertical", 1, 2, 4, 2))
sketch17.addConstraint(Sketcher.Constraint("DistanceX", 15, 1, 15, 2, 2.0))
sketch17.addConstraint(Sketcher.Constraint("DistanceX", 0, 2, 0, 1, 2.4))
sketch17.addConstraint(Sketcher.Constraint("DistanceX", 2, 1, 2, 2, 1.2))
sketch17.addConstraint(Sketcher.Constraint("DistanceX", 9, 2, 9, 1, 3.8))
sketch17.addConstraint(Sketcher.Constraint("DistanceY", 5, 2, 5, 1, 4.4))
sketch17.addConstraint(Sketcher.Constraint("DistanceY", 7, 1, 7, 2, 8.3))
sketch17.addConstraint(Sketcher.Constraint("DistanceY", 10, 2, 10, 1, 7.4))
sketch17.addConstraint(Sketcher.Constraint("DistanceX", -1, 1, 6, 2, 13.0))
sketch17.addConstraint(Sketcher.Constraint("DistanceX", 9, 2, -1, 1, 9.0))
sketch17.addConstraint(Sketcher.Constraint("DistanceY", 1, 2, 1, 1, 2.12))
sketch17.addConstraint(Sketcher.Constraint("DistanceX", 11, 1, 11, 2, 3.955))
sketch17.addConstraint(Sketcher.Constraint("DistanceY", -1, 1, 0, 2, 11.65))
pad5 = body.newObject("PartDesign::Pad", "Pad004")
pad5.Profile = sketch17
pad5.Length = 32.5

sketch18 = body.newObject("Sketcher::SketchObject", "Sketch017")
sketch18.AttachmentSupport = (doc.getObject("XZ_Plane"), [""])
sketch18.MapMode = "FlatFace"
sketch18.AttachmentOffset = App.Placement(App.Vector(0, 0, -17.65), App.Rotation())
sketch18.addGeometry(Part.LineSegment(App.Vector(-15, 0, 0), App.Vector(-15, 20, 0)), False)
sketch18.addGeometry(Part.LineSegment(App.Vector(-15, 20, 0), App.Vector(-5, 20, 0)), False)
sketch18.addGeometry(Part.LineSegment(App.Vector(-5, 20, 0), App.Vector(-5, 0, 0)), False)
sketch18.addGeometry(Part.LineSegment(App.Vector(-5, 0, 0), App.Vector(-15, 0, 0)), False)
sketch18.addConstraint(Sketcher.Constraint("Coincident", 0, 2, 1, 1))
sketch18.addConstraint(Sketcher.Constraint("Coincident", 1, 2, 2, 1))
sketch18.addConstraint(Sketcher.Constraint("Coincident", 2, 2, 3, 1))
sketch18.addConstraint(Sketcher.Constraint("Coincident", 3, 2, 0, 1))
sketch18.addConstraint(Sketcher.Constraint("Vertical", 0))
sketch18.addConstraint(Sketcher.Constraint("Horizontal", 1))
sketch18.addConstraint(Sketcher.Constraint("Vertical", 2))
sketch18.addConstraint(Sketcher.Constraint("Horizontal", 3))
sketch18.addConstraint(Sketcher.Constraint("PointOnObject", 2, 2, -1))
sketch18.addConstraint(Sketcher.Constraint("DistanceX", 1, 1, 1, 2, 10.0))
sketch18.addConstraint(Sketcher.Constraint("DistanceY", 0, 1, 0, 2, 20.0))
sketch18.addConstraint(Sketcher.Constraint("DistanceX", 0, 2, -1, 1, 15.2))
pocket13 = body.newObject("PartDesign::Pocket", "Pocket012")
pocket13.Profile = sketch18
pocket13.Length = 6
pocket13.Reversed = True

sketch19 = body.newObject("Sketcher::SketchObject", "Sketch018")
sketch19.AttachmentSupport = (doc.getObject("XZ_Plane"), [""])
sketch19.MapMode = "FlatFace"
sketch19.AttachmentOffset = App.Placement(App.Vector(0, 0, -5.65), App.Rotation())
sketch19.addGeometry(Part.LineSegment(App.Vector(-33, 20, 0), App.Vector(-33, 0, 0)), False)
sketch19.addGeometry(Part.LineSegment(App.Vector(-33, 0, 0), App.Vector(-9, 0, 0)), False)
sketch19.addGeometry(Part.LineSegment(App.Vector(-9, 0, 0), App.Vector(-9, 20, 0)), False)
sketch19.addGeometry(Part.LineSegment(App.Vector(-9, 20, 0), App.Vector(-33, 20, 0)), False)
sketch19.addConstraint(Sketcher.Constraint("Coincident", 0, 2, 1, 1))
sketch19.addConstraint(Sketcher.Constraint("Coincident", 1, 2, 2, 1))
sketch19.addConstraint(Sketcher.Constraint("Coincident", 2, 2, 3, 1))
sketch19.addConstraint(Sketcher.Constraint("Coincident", 3, 2, 0, 1))
sketch19.addConstraint(Sketcher.Constraint("Vertical", 0))
sketch19.addConstraint(Sketcher.Constraint("Horizontal", 1))
sketch19.addConstraint(Sketcher.Constraint("Vertical", 2))
sketch19.addConstraint(Sketcher.Constraint("Horizontal", 3))
sketch19.addConstraint(Sketcher.Constraint("PointOnObject", 0, 2, -1))
sketch19.addConstraint(Sketcher.Constraint("DistanceX", 1, 1, 1, 2, 24.0))
sketch19.addConstraint(Sketcher.Constraint("DistanceY", 0, 2, 0, 1, 20.0))
sketch19.addConstraint(Sketcher.Constraint("DistanceX", 0, 2, -1, 1, 33.0))
pad6 = body.newObject("PartDesign::Pad", "Pad005")
pad6.Profile = sketch19
pad6.Length = 1.4

sketch20 = body.newObject("Sketcher::SketchObject", "Sketch019")
sketch20.AttachmentSupport = (doc.getObject("XY_Plane"), [""])
sketch20.MapMode = "FlatFace"
sketch20.addGeometry(Part.Circle(App.Vector(-26.1, 11.7, 0), App.Vector(0, 0, 1), 1.4), False)
sketch20.addConstraint(Sketcher.Constraint("Diameter", 0, 2.9))
sketch20.addConstraint(Sketcher.Constraint("DistanceX", 0, 3, -1, 1, 26.1))
sketch20.addConstraint(Sketcher.Constraint("DistanceY", -1, 1, 0, 3, 11.65))
pocket14 = body.newObject("PartDesign::Pocket", "Pocket013")
pocket14.Profile = sketch20
pocket14.Length = 10
pocket14.Reversed = True

doc.recompute()
